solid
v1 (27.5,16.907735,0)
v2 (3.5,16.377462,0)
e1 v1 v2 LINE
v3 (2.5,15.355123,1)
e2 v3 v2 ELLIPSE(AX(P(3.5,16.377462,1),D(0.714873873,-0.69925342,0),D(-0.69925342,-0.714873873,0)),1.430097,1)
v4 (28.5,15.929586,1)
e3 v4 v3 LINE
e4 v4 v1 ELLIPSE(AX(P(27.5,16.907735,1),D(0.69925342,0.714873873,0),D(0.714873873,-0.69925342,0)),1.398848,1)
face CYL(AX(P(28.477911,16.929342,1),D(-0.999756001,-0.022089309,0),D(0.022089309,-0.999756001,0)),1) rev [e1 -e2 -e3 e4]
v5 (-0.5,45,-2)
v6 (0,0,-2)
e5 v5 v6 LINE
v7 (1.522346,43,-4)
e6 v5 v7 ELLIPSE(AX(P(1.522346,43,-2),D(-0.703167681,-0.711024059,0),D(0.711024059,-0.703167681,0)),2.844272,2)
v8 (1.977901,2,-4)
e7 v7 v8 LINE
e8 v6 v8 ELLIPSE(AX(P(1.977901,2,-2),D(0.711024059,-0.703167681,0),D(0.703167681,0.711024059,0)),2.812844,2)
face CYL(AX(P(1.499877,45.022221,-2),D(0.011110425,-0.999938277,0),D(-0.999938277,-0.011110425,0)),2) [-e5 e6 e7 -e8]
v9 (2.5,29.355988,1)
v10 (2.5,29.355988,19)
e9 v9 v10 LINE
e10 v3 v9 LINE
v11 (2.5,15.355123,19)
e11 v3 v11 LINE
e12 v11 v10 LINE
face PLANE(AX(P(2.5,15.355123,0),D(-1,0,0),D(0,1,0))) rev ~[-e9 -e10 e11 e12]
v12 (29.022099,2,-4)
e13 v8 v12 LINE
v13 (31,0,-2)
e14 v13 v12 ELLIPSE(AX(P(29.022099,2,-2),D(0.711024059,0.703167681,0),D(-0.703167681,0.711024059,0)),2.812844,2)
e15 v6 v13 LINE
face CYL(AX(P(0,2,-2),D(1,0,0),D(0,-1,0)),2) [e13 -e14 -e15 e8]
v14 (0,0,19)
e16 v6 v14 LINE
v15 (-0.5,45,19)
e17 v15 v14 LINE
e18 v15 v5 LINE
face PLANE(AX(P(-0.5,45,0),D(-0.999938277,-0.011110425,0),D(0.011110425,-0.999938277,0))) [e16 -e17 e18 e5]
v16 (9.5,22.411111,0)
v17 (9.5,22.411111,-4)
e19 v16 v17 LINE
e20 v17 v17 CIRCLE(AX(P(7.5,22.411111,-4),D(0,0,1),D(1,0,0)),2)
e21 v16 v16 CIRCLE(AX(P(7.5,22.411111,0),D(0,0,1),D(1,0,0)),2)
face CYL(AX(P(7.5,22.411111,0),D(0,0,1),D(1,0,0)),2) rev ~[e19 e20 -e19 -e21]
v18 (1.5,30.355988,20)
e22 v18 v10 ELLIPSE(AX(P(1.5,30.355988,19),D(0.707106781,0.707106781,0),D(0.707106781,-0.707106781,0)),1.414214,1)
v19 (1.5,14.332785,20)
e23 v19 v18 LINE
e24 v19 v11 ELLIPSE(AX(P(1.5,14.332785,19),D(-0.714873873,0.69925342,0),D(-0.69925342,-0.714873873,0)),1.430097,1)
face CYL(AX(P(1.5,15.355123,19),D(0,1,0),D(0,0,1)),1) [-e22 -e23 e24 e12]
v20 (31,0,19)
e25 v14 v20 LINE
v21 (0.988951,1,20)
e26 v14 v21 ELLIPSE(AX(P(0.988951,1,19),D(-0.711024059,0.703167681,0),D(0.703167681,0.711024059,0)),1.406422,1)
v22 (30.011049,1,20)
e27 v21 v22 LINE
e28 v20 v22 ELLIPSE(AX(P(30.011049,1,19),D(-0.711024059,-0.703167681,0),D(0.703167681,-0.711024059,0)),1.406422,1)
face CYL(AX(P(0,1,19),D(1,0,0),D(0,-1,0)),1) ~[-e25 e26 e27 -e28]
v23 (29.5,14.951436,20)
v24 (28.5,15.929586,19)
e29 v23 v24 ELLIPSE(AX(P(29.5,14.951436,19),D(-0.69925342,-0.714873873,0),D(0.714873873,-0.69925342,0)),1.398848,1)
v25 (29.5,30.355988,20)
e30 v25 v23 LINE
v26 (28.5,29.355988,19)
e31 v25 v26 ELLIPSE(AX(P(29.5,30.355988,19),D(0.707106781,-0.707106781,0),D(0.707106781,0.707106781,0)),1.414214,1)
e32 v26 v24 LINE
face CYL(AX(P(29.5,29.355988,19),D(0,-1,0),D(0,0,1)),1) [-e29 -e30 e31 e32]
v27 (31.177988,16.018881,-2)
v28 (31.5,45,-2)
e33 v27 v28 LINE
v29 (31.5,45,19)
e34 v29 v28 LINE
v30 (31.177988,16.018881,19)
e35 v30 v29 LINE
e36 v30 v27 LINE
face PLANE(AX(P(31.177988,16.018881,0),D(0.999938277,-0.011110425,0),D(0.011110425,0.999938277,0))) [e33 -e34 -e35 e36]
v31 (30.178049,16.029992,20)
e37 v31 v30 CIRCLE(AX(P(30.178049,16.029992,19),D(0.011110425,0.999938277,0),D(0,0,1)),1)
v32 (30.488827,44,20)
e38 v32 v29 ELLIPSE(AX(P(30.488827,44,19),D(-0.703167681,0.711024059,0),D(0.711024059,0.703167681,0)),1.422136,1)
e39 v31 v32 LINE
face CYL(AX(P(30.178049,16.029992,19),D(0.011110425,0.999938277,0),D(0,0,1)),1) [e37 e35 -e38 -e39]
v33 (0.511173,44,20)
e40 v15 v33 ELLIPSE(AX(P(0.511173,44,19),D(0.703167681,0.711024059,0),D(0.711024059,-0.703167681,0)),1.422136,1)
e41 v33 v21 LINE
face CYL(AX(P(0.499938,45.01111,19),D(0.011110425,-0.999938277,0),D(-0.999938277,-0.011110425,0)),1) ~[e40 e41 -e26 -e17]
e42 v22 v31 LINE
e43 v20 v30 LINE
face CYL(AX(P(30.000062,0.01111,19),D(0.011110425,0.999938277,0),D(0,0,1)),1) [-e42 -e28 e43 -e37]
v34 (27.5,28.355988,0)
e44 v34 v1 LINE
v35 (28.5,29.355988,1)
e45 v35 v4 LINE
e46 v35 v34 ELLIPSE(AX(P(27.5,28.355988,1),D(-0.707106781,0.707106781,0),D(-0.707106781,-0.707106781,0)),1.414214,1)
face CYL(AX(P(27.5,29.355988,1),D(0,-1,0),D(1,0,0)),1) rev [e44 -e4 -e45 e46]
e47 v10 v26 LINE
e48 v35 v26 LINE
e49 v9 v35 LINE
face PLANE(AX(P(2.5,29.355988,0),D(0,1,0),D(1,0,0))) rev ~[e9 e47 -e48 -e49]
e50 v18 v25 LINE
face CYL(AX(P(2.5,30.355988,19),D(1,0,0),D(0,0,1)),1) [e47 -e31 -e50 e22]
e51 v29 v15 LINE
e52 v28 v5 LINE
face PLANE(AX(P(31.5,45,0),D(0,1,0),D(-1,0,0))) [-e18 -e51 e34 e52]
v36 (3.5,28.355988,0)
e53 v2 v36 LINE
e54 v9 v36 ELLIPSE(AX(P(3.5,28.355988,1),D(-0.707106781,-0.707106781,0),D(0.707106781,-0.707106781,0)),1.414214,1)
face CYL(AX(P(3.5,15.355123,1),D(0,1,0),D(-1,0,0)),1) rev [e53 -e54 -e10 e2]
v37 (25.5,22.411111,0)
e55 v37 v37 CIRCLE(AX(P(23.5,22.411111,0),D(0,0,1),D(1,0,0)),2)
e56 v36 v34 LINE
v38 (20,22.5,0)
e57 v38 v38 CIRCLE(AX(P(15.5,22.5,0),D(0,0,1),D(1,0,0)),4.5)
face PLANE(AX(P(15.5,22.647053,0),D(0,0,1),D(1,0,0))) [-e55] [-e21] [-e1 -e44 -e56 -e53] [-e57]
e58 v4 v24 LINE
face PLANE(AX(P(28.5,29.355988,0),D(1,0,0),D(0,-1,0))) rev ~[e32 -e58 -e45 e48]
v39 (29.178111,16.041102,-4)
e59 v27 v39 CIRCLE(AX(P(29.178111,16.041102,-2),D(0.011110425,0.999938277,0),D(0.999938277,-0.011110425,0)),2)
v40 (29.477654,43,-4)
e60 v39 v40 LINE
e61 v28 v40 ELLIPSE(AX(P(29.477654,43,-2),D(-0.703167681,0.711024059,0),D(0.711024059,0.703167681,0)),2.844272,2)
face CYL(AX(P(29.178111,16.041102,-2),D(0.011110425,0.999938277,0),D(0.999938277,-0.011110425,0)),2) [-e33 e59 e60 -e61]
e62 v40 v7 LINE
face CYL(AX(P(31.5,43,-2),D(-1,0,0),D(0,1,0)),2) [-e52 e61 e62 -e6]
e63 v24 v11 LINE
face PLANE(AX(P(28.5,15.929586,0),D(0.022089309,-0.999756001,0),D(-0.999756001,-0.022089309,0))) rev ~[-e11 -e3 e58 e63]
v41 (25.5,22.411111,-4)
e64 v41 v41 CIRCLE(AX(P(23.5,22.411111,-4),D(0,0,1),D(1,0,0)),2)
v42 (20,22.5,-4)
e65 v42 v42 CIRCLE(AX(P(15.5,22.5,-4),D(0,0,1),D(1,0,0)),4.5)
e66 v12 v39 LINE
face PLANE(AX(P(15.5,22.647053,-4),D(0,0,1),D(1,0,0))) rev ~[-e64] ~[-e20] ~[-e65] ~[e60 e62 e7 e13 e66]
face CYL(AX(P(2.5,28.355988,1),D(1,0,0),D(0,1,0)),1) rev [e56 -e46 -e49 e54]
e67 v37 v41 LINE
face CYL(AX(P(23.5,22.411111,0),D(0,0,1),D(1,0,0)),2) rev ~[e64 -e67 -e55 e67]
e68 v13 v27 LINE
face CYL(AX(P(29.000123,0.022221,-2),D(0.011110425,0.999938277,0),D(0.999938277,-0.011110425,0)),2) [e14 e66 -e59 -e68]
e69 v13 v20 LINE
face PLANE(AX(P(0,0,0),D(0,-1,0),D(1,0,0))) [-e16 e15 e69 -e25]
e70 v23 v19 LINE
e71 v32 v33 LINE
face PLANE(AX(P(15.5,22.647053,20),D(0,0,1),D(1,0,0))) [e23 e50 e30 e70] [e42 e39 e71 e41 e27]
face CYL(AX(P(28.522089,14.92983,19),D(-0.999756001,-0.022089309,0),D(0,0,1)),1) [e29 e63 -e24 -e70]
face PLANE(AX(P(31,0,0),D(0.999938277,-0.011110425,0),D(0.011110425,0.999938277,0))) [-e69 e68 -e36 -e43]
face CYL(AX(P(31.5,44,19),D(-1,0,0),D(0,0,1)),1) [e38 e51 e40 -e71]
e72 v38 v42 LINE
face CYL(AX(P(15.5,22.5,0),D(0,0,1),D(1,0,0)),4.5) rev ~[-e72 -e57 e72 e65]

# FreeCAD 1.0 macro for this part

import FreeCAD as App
import Part
import Sketcher

V = App.Vector


def edges_at(feature, points):
    """Names of the edges that pass closest to the given points."""
    edges = feature.Shape.Edges
    near = lambda p: min(range(len(edges)), key=lambda i: edges[i].distToShape(Part.Vertex(*p))[0])
    return sorted({f"Edge{near(p) + 1}" for p in points})

doc = App.newDocument("Part")
body = doc.addObject("PartDesign::Body", "Body")

# Sketch on XY plane
sketch1 = body.newObject("Sketcher::SketchObject", "Sketch")
sketch1.AttachmentSupport = (doc.getObject("XY_Plane"), [""])
sketch1.MapMode = "FlatFace"
sketch1.addGeometry([
    Part.LineSegment(V(0, 45, 0), V(0, 0, 0)),  # 0
    Part.LineSegment(V(0, 0, 0), V(31, 0, 0)),  # 1
    Part.LineSegment(V(31, 0, 0), V(31, 16, 0)),  # 2
    Part.LineSegment(V(31, 16, 0), V(32, 45, 0)),  # 3
    Part.LineSegment(V(32, 45, 0), V(0, 45, 0)),  # 4
    Part.LineSegment(V(29, 29, 0), V(29, 16, 0)),  # 5
    Part.LineSegment(V(29, 16, 0), V(2, 15, 0)),  # 6
    Part.LineSegment(V(2, 15, 0), V(2, 29, 0)),  # 7
    Part.LineSegment(V(2, 29, 0), V(29, 29, 0)),  # 8
], False)
sketch1.addConstraint([
    Sketcher.Constraint("Coincident", 0, 2, 1, 1),
    Sketcher.Constraint("Coincident", 1, 2, 2, 1),
    Sketcher.Constraint("Coincident", 2, 2, 3, 1),
    Sketcher.Constraint("Coincident", 3, 2, 4, 1),
    Sketcher.Constraint("Coincident", 4, 2, 0, 1),
    Sketcher.Constraint("Coincident", 5, 2, 6, 1),
    Sketcher.Constraint("Coincident", 6, 2, 7, 1),
    Sketcher.Constraint("Coincident", 7, 2, 8, 1),
    Sketcher.Constraint("Coincident", 8, 2, 5, 1),
    Sketcher.Constraint("Horizontal", 1),
    Sketcher.Constraint("Horizontal", 4),
    Sketcher.Constraint("Vertical", 5),
    Sketcher.Constraint("Vertical", 7),
    Sketcher.Constraint("Horizontal", 8),
    Sketcher.Constraint("Coincident", 0, 2, -1, 1),
    Sketcher.Constraint("Parallel", 2, 3),
    Sketcher.Constraint("DistanceX", 1, 1, 1, 2, 31.0),
    Sketcher.Constraint("DistanceX", 4, 2, 4, 1, 32.0),
    Sketcher.Constraint("DistanceX", 8, 1, 8, 2, 26.0),
    Sketcher.Constraint("DistanceY", -1, 1, 3, 2, 45.0),
    Sketcher.Constraint("DistanceX", 5, 2, 3, 2, 3.0),
    Sketcher.Constraint("DistanceX", -1, 1, 3, 2, 31.5),
    Sketcher.Constraint("DistanceY", 5, 2, 5, 1, 13.426402),
    Sketcher.Constraint("Distance", 2, 16.01987),
    Sketcher.Constraint("DistanceY", 7, 1, 7, 2, 14.000864),
    Sketcher.Constraint("DistanceY", -1, 1, 5, 2, 15.929586),
])
pad1 = body.newObject("PartDesign::Pad", "Pad")
pad1.Profile = sketch1
pad1.Length = 20

# Sketch on XY plane
sketch2 = body.newObject("Sketcher::SketchObject", "Sketch001")
sketch2.AttachmentSupport = (doc.getObject("XY_Plane"), [""])
sketch2.MapMode = "FlatFace"
sketch2.addGeometry([
    Part.LineSegment(V(-0.5, 45, 0), V(0, 0, 0)),  # 0
    Part.LineSegment(V(0, 0, 0), V(31, 0, 0)),  # 1
    Part.LineSegment(V(31, 0, 0), V(31.2, 16, 0)),  # 2
    Part.LineSegment(V(31.2, 16, 0), V(31.5, 45, 0)),  # 3
    Part.LineSegment(V(31.5, 45, 0), V(-0.5, 45, 0)),  # 4
    Part.Circle(V(7.5, 22.4, 0), V(0, 0, 1), 2),  # 5
    Part.Circle(V(23.5, 22.4, 0), V(0, 0, 1), 2),  # 6
    Part.Circle(V(15.5, 22.5, 0), V(0, 0, 1), 4.5),  # 7
], False)
sketch2.addConstraint([
    Sketcher.Constraint("Coincident", 0, 2, 1, 1),
    Sketcher.Constraint("Coincident", 1, 2, 2, 1),
    Sketcher.Constraint("Coincident", 2, 2, 3, 1),
    Sketcher.Constraint("Coincident", 3, 2, 4, 1),
    Sketcher.Constraint("Coincident", 4, 2, 0, 1),
    Sketcher.Constraint("Horizontal", 1),
    Sketcher.Constraint("Horizontal", 4),
    Sketcher.Constraint("Coincident", 0, 2, -1, 1),
    Sketcher.Constraint("Equal", 5, 6),
    Sketcher.Constraint("Parallel", 2, 3),
    Sketcher.Constraint("Horizontal", 5, 3, 6, 3),
    Sketcher.Constraint("Diameter", 5, 4.0),
    Sketcher.Constraint("Diameter", 7, 9.0),
    Sketcher.Constraint("DistanceX", 1, 1, 1, 2, 31.0),
    Sketcher.Constraint("DistanceX", 4, 2, 4, 1, 32.0),
    Sketcher.Constraint("DistanceY", -1, 1, 3, 2, 45.0),
    Sketcher.Constraint("DistanceX", 5, 3, 6, 3, 16.0),
    Sketcher.Constraint("DistanceX", 5, 3, 7, 3, 8.0),
    Sketcher.Constraint("DistanceX", 6, 3, 3, 2, 8.0),
    Sketcher.Constraint("DistanceX", -1, 1, 5, 3, 7.5),
    Sketcher.Constraint("DistanceY", -1, 1, 7, 3, 22.5),
    Sketcher.Constraint("Distance", 2, 16.01987),
    Sketcher.Constraint("DistanceY", -1, 1, 5, 3, 22.411111),
])
pad2 = body.newObject("PartDesign::Pad", "Pad001")
pad2.Profile = sketch2
pad2.Length = 4
pad2.Reversed = True
doc.recompute()

fillet = body.newObject("PartDesign::Fillet", "Fillet")
fillet.Base = (pad2, edges_at(pad2, [
    (31.339, 30.509, -4),
    (15.5, 0, -4),
    (-0.25, 22.5, -4),
    (15.5, 45, -4),
]))
fillet.Radius = 2
doc.recompute()

fillet2 = body.newObject("PartDesign::Fillet", "Fillet001")
fillet2.Base = (fillet, edges_at(fillet, [
    (15.5, 0, 20),
    (31.339, 30.509, 20),
    (-0.25, 22.5, 20),
    (15.5, 45, 20),
    (15.5, 29.356, 20),
    (28.5, 22.643, 20),
    (15.5, 15.642, 20),
    (2.5, 22.356, 20),
    (28.5, 22.643, 0),
    (15.5, 15.642, 0),
    (15.5, 29.356, 0),
    (2.5, 22.356, 0),
]))
fillet2.Radius = 1

doc.recompute()
